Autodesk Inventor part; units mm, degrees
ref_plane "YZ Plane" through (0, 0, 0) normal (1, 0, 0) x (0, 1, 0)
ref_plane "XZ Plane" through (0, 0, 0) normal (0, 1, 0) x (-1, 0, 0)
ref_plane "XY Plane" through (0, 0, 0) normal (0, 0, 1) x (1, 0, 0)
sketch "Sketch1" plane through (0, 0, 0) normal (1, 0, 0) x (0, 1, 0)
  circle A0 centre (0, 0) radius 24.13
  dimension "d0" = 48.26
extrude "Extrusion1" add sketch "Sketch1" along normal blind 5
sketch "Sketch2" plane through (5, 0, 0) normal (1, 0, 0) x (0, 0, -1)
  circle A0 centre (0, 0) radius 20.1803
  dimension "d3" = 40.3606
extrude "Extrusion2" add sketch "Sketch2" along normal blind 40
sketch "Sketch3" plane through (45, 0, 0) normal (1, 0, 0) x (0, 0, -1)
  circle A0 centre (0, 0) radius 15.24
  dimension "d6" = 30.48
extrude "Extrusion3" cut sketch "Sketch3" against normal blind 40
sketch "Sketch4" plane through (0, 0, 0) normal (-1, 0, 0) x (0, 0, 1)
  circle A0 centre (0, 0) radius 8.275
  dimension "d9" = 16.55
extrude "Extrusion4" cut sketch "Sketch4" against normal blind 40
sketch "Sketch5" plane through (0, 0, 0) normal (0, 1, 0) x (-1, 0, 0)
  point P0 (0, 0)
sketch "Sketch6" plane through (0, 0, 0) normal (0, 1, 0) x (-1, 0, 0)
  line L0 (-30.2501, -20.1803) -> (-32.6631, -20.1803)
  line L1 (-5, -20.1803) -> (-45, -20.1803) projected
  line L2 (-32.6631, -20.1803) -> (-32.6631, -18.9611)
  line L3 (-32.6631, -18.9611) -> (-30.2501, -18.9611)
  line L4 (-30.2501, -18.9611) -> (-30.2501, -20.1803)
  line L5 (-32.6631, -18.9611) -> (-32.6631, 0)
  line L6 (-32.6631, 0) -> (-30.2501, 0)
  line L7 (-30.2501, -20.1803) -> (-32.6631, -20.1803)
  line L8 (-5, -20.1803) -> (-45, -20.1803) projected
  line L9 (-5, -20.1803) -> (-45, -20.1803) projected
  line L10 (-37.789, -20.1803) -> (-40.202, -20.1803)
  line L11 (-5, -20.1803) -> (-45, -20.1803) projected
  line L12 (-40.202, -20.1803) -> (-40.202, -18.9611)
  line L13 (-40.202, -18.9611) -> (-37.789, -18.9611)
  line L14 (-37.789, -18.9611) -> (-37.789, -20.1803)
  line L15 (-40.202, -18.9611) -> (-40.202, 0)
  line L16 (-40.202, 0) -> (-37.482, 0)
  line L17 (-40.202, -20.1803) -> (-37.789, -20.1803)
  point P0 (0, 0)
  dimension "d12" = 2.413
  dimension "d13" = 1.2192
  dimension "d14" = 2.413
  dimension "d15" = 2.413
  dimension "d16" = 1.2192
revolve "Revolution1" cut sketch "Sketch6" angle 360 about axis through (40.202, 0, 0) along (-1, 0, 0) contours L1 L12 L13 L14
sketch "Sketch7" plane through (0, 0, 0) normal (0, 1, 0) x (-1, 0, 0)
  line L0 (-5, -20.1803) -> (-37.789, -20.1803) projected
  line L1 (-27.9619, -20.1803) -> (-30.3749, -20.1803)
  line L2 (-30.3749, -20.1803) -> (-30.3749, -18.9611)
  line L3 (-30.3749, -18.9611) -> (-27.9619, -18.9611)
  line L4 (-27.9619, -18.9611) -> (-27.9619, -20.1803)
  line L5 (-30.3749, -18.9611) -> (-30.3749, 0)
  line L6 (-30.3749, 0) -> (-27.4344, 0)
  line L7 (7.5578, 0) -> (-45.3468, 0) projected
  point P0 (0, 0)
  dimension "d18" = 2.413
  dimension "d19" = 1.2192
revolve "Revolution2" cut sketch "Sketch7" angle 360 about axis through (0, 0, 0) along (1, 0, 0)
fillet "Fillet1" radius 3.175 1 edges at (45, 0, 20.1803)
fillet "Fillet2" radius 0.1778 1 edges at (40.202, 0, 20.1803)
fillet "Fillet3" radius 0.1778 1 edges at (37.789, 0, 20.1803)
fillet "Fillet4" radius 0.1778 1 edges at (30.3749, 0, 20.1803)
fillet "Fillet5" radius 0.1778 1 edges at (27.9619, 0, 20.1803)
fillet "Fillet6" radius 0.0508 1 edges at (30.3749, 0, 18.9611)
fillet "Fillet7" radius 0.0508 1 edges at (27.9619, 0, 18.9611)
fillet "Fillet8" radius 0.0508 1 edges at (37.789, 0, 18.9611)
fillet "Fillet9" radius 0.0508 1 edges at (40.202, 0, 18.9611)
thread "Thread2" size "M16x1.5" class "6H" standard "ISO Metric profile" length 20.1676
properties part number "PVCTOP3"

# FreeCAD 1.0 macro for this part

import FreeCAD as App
import Part
import Sketcher

V = App.Vector
Q = App.Units.Quantity


def edges_at(feature, points):
    """Names of the edges that pass closest to the given points."""
    edges = feature.Shape.Edges
    near = lambda p: min(range(len(edges)), key=lambda i: edges[i].distToShape(Part.Vertex(*p))[0])
    return sorted({f"Edge{near(p) + 1}" for p in points})


def add_polygon(sketch, points):
    """Adds a closed chain of lines whose ends are joined by coincident constraints."""
    first, n = sketch.GeometryCount, len(points)
    for a, b in zip(points, points[1:] + points[:1]):
        sketch.addGeometry(Part.LineSegment(App.Vector(*a, 0), App.Vector(*b, 0)), False)
    for i in range(n):
        sketch.addConstraint(Sketcher.Constraint("Coincident", first + i, 2, first + (i + 1) % n, 1))

doc = App.newDocument("Part")
body = doc.addObject("PartDesign::Body", "Body")

# Sketch on YZ plane
sketch1 = body.newObject("Sketcher::SketchObject", "Sketch")
sketch1.AttachmentSupport = (doc.getObject("YZ_Plane"), [""])
sketch1.MapMode = "FlatFace"
sketch1.addGeometry(Part.Circle(V(0, 0, 0), V(0, 0, 1), 24), False)
sketch1.addConstraint(Sketcher.Constraint("Coincident", 0, 3, -1, 1))
sketch1.addConstraint(Sketcher.Constraint("Diameter", 0, Q("1.9 in")))
pad1 = body.newObject("PartDesign::Pad", "Pad")
pad1.Profile = sketch1
pad1.Length = 5

# Sketch on YZ plane
sketch2 = body.newObject("Sketcher::SketchObject", "Sketch001")
sketch2.AttachmentSupport = (doc.getObject("YZ_Plane"), [""])
sketch2.MapMode = "FlatFace"
sketch2.AttachmentOffset = App.Placement(V(0, 0, 5), App.Rotation())
sketch2.addGeometry(Part.Circle(V(0, 0, 0), V(0, 0, 1), 20), False)
sketch2.addConstraint(Sketcher.Constraint("Coincident", 0, 3, -1, 1))
sketch2.addConstraint(Sketcher.Constraint("Diameter", 0, Q("1.589 in")))
pad2 = body.newObject("PartDesign::Pad", "Pad001")
pad2.Profile = sketch2
pad2.Length = Q("1.5748031 in")

# Sketch on YZ plane
sketch3 = body.newObject("Sketcher::SketchObject", "Sketch002")
sketch3.AttachmentSupport = (doc.getObject("YZ_Plane"), [""])
sketch3.MapMode = "FlatFace"
sketch3.AttachmentOffset = App.Placement(V(0, 0, 45), App.Rotation())
sketch3.addGeometry(Part.Circle(V(0, 0, 0), V(0, 0, 1), 15), False)
sketch3.addConstraint(Sketcher.Constraint("Coincident", 0, 3, -1, 1))
sketch3.addConstraint(Sketcher.Constraint("Diameter", 0, Q("1.2 in")))
pocket1 = body.newObject("PartDesign::Pocket", "Pocket")
pocket1.Profile = sketch3
pocket1.Length = Q("1.5748031 in")

# Sketch on YZ plane
sketch4 = body.newObject("Sketcher::SketchObject", "Sketch003")
sketch4.AttachmentSupport = (doc.getObject("YZ_Plane"), [""])
sketch4.MapMode = "FlatFace"
sketch4.addGeometry(Part.Circle(V(0, 0, 0), V(0, 0, 1), 8), False)
sketch4.addConstraint(Sketcher.Constraint("Coincident", 0, 3, -1, 1))
sketch4.addConstraint(Sketcher.Constraint("Diameter", 0, 16.55))
pocket2 = body.newObject("PartDesign::Pocket", "Pocket001")
pocket2.Profile = sketch4
pocket2.Length = Q("1.5748031 in")
pocket2.Reversed = True

# Sketch on XZ plane
sketch5 = body.newObject("Sketcher::SketchObject", "Sketch004")
sketch5.AttachmentSupport = (doc.getObject("XZ_Plane"), [""])
sketch5.MapMode = "FlatFace"
add_polygon(sketch5, [(40.2, -20.2), (37.8, -20.2), (37.8, -19), (40.2, -19)])  # lines 0-3
sketch5.addConstraint(Sketcher.Constraint("Horizontal", 0))
sketch5.addConstraint(Sketcher.Constraint("Vertical", 1))
sketch5.addConstraint(Sketcher.Constraint("Horizontal", 2))
sketch5.addConstraint(Sketcher.Constraint("Vertical", 3))
sketch5.addConstraint(Sketcher.Constraint("DistanceX", 0, 2, 0, 1, Q("0.095 in")))
sketch5.addConstraint(Sketcher.Constraint("DistanceY", 1, 1, 1, 2, Q("0.048 in")))
sketch5.addConstraint(Sketcher.Constraint("DistanceY", 0, 2, -1, 1, Q("0.7945 in")))
sketch5.addConstraint(Sketcher.Constraint("DistanceX", -1, 1, 0, 2, 37.789))
groove = body.newObject("PartDesign::Groove", "Groove")
groove.Profile = sketch5
groove.ReferenceAxis = (sketch5, ["H_Axis"])
groove.Angle = 360

# Sketch on XZ plane
sketch6 = body.newObject("Sketcher::SketchObject", "Sketch005")
sketch6.AttachmentSupport = (doc.getObject("XZ_Plane"), [""])
sketch6.MapMode = "FlatFace"
add_polygon(sketch6, [(30.4, -20.2), (28, -20.2), (28, -19), (30.4, -19)])  # lines 0-3
sketch6.addConstraint(Sketcher.Constraint("Horizontal", 0))
sketch6.addConstraint(Sketcher.Constraint("Vertical", 1))
sketch6.addConstraint(Sketcher.Constraint("Horizontal", 2))
sketch6.addConstraint(Sketcher.Constraint("Vertical", 3))
sketch6.addConstraint(Sketcher.Constraint("DistanceX", 0, 2, 0, 1, Q("0.095 in")))
sketch6.addConstraint(Sketcher.Constraint("DistanceY", 1, 1, 1, 2, Q("0.048 in")))
sketch6.addConstraint(Sketcher.Constraint("DistanceY", 0, 2, -1, 1, Q("0.7945 in")))
sketch6.addConstraint(Sketcher.Constraint("DistanceX", -1, 1, 0, 2, 27.962))
groove2 = body.newObject("PartDesign::Groove", "Groove001")
groove2.Profile = sketch6
groove2.ReferenceAxis = (sketch6, ["H_Axis"])
groove2.Angle = 360
doc.recompute()

fillet = body.newObject("PartDesign::Fillet", "Fillet")
fillet.Base = (groove2, edges_at(groove2, [(45, 0, 20.18)]))
fillet.Radius = Q("0.125 in")
doc.recompute()

fillet2 = body.newObject("PartDesign::Fillet", "Fillet001")
fillet2.Base = (fillet, edges_at(fillet, [(40.202, 0, 20.18)]))
fillet2.Radius = Q("0.007 in")
doc.recompute()

fillet3 = body.newObject("PartDesign::Fillet", "Fillet002")
fillet3.Base = (fillet2, edges_at(fillet2, [(37.789, 0, 20.18)]))
fillet3.Radius = Q("0.007 in")
doc.recompute()

fillet4 = body.newObject("PartDesign::Fillet", "Fillet003")
fillet4.Base = (fillet3, edges_at(fillet3, [(30.375, 0, 20.18)]))
fillet4.Radius = Q("0.007 in")
doc.recompute()

fillet5 = body.newObject("PartDesign::Fillet", "Fillet004")
fillet5.Base = (fillet4, edges_at(fillet4, [(27.962, 0, 20.18)]))
fillet5.Radius = Q("0.007 in")
doc.recompute()

fillet6 = body.newObject("PartDesign::Fillet", "Fillet005")
fillet6.Base = (fillet5, edges_at(fillet5, [(30.375, 0, 18.961)]))
fillet6.Radius = Q("0.002 in")
doc.recompute()

fillet7 = body.newObject("PartDesign::Fillet", "Fillet006")
fillet7.Base = (fillet6, edges_at(fillet6, [(27.962, 0, 18.961)]))
fillet7.Radius = Q("0.002 in")
doc.recompute()

fillet8 = body.newObject("PartDesign::Fillet", "Fillet007")
fillet8.Base = (fillet7, edges_at(fillet7, [(37.789, 0, 18.961)]))
fillet8.Radius = Q("0.002 in")
doc.recompute()

fillet9 = body.newObject("PartDesign::Fillet", "Fillet008")
fillet9.Base = (fillet8, edges_at(fillet8, [(40.202, 0, 18.961)]))
fillet9.Radius = Q("0.002 in")

doc.recompute()
